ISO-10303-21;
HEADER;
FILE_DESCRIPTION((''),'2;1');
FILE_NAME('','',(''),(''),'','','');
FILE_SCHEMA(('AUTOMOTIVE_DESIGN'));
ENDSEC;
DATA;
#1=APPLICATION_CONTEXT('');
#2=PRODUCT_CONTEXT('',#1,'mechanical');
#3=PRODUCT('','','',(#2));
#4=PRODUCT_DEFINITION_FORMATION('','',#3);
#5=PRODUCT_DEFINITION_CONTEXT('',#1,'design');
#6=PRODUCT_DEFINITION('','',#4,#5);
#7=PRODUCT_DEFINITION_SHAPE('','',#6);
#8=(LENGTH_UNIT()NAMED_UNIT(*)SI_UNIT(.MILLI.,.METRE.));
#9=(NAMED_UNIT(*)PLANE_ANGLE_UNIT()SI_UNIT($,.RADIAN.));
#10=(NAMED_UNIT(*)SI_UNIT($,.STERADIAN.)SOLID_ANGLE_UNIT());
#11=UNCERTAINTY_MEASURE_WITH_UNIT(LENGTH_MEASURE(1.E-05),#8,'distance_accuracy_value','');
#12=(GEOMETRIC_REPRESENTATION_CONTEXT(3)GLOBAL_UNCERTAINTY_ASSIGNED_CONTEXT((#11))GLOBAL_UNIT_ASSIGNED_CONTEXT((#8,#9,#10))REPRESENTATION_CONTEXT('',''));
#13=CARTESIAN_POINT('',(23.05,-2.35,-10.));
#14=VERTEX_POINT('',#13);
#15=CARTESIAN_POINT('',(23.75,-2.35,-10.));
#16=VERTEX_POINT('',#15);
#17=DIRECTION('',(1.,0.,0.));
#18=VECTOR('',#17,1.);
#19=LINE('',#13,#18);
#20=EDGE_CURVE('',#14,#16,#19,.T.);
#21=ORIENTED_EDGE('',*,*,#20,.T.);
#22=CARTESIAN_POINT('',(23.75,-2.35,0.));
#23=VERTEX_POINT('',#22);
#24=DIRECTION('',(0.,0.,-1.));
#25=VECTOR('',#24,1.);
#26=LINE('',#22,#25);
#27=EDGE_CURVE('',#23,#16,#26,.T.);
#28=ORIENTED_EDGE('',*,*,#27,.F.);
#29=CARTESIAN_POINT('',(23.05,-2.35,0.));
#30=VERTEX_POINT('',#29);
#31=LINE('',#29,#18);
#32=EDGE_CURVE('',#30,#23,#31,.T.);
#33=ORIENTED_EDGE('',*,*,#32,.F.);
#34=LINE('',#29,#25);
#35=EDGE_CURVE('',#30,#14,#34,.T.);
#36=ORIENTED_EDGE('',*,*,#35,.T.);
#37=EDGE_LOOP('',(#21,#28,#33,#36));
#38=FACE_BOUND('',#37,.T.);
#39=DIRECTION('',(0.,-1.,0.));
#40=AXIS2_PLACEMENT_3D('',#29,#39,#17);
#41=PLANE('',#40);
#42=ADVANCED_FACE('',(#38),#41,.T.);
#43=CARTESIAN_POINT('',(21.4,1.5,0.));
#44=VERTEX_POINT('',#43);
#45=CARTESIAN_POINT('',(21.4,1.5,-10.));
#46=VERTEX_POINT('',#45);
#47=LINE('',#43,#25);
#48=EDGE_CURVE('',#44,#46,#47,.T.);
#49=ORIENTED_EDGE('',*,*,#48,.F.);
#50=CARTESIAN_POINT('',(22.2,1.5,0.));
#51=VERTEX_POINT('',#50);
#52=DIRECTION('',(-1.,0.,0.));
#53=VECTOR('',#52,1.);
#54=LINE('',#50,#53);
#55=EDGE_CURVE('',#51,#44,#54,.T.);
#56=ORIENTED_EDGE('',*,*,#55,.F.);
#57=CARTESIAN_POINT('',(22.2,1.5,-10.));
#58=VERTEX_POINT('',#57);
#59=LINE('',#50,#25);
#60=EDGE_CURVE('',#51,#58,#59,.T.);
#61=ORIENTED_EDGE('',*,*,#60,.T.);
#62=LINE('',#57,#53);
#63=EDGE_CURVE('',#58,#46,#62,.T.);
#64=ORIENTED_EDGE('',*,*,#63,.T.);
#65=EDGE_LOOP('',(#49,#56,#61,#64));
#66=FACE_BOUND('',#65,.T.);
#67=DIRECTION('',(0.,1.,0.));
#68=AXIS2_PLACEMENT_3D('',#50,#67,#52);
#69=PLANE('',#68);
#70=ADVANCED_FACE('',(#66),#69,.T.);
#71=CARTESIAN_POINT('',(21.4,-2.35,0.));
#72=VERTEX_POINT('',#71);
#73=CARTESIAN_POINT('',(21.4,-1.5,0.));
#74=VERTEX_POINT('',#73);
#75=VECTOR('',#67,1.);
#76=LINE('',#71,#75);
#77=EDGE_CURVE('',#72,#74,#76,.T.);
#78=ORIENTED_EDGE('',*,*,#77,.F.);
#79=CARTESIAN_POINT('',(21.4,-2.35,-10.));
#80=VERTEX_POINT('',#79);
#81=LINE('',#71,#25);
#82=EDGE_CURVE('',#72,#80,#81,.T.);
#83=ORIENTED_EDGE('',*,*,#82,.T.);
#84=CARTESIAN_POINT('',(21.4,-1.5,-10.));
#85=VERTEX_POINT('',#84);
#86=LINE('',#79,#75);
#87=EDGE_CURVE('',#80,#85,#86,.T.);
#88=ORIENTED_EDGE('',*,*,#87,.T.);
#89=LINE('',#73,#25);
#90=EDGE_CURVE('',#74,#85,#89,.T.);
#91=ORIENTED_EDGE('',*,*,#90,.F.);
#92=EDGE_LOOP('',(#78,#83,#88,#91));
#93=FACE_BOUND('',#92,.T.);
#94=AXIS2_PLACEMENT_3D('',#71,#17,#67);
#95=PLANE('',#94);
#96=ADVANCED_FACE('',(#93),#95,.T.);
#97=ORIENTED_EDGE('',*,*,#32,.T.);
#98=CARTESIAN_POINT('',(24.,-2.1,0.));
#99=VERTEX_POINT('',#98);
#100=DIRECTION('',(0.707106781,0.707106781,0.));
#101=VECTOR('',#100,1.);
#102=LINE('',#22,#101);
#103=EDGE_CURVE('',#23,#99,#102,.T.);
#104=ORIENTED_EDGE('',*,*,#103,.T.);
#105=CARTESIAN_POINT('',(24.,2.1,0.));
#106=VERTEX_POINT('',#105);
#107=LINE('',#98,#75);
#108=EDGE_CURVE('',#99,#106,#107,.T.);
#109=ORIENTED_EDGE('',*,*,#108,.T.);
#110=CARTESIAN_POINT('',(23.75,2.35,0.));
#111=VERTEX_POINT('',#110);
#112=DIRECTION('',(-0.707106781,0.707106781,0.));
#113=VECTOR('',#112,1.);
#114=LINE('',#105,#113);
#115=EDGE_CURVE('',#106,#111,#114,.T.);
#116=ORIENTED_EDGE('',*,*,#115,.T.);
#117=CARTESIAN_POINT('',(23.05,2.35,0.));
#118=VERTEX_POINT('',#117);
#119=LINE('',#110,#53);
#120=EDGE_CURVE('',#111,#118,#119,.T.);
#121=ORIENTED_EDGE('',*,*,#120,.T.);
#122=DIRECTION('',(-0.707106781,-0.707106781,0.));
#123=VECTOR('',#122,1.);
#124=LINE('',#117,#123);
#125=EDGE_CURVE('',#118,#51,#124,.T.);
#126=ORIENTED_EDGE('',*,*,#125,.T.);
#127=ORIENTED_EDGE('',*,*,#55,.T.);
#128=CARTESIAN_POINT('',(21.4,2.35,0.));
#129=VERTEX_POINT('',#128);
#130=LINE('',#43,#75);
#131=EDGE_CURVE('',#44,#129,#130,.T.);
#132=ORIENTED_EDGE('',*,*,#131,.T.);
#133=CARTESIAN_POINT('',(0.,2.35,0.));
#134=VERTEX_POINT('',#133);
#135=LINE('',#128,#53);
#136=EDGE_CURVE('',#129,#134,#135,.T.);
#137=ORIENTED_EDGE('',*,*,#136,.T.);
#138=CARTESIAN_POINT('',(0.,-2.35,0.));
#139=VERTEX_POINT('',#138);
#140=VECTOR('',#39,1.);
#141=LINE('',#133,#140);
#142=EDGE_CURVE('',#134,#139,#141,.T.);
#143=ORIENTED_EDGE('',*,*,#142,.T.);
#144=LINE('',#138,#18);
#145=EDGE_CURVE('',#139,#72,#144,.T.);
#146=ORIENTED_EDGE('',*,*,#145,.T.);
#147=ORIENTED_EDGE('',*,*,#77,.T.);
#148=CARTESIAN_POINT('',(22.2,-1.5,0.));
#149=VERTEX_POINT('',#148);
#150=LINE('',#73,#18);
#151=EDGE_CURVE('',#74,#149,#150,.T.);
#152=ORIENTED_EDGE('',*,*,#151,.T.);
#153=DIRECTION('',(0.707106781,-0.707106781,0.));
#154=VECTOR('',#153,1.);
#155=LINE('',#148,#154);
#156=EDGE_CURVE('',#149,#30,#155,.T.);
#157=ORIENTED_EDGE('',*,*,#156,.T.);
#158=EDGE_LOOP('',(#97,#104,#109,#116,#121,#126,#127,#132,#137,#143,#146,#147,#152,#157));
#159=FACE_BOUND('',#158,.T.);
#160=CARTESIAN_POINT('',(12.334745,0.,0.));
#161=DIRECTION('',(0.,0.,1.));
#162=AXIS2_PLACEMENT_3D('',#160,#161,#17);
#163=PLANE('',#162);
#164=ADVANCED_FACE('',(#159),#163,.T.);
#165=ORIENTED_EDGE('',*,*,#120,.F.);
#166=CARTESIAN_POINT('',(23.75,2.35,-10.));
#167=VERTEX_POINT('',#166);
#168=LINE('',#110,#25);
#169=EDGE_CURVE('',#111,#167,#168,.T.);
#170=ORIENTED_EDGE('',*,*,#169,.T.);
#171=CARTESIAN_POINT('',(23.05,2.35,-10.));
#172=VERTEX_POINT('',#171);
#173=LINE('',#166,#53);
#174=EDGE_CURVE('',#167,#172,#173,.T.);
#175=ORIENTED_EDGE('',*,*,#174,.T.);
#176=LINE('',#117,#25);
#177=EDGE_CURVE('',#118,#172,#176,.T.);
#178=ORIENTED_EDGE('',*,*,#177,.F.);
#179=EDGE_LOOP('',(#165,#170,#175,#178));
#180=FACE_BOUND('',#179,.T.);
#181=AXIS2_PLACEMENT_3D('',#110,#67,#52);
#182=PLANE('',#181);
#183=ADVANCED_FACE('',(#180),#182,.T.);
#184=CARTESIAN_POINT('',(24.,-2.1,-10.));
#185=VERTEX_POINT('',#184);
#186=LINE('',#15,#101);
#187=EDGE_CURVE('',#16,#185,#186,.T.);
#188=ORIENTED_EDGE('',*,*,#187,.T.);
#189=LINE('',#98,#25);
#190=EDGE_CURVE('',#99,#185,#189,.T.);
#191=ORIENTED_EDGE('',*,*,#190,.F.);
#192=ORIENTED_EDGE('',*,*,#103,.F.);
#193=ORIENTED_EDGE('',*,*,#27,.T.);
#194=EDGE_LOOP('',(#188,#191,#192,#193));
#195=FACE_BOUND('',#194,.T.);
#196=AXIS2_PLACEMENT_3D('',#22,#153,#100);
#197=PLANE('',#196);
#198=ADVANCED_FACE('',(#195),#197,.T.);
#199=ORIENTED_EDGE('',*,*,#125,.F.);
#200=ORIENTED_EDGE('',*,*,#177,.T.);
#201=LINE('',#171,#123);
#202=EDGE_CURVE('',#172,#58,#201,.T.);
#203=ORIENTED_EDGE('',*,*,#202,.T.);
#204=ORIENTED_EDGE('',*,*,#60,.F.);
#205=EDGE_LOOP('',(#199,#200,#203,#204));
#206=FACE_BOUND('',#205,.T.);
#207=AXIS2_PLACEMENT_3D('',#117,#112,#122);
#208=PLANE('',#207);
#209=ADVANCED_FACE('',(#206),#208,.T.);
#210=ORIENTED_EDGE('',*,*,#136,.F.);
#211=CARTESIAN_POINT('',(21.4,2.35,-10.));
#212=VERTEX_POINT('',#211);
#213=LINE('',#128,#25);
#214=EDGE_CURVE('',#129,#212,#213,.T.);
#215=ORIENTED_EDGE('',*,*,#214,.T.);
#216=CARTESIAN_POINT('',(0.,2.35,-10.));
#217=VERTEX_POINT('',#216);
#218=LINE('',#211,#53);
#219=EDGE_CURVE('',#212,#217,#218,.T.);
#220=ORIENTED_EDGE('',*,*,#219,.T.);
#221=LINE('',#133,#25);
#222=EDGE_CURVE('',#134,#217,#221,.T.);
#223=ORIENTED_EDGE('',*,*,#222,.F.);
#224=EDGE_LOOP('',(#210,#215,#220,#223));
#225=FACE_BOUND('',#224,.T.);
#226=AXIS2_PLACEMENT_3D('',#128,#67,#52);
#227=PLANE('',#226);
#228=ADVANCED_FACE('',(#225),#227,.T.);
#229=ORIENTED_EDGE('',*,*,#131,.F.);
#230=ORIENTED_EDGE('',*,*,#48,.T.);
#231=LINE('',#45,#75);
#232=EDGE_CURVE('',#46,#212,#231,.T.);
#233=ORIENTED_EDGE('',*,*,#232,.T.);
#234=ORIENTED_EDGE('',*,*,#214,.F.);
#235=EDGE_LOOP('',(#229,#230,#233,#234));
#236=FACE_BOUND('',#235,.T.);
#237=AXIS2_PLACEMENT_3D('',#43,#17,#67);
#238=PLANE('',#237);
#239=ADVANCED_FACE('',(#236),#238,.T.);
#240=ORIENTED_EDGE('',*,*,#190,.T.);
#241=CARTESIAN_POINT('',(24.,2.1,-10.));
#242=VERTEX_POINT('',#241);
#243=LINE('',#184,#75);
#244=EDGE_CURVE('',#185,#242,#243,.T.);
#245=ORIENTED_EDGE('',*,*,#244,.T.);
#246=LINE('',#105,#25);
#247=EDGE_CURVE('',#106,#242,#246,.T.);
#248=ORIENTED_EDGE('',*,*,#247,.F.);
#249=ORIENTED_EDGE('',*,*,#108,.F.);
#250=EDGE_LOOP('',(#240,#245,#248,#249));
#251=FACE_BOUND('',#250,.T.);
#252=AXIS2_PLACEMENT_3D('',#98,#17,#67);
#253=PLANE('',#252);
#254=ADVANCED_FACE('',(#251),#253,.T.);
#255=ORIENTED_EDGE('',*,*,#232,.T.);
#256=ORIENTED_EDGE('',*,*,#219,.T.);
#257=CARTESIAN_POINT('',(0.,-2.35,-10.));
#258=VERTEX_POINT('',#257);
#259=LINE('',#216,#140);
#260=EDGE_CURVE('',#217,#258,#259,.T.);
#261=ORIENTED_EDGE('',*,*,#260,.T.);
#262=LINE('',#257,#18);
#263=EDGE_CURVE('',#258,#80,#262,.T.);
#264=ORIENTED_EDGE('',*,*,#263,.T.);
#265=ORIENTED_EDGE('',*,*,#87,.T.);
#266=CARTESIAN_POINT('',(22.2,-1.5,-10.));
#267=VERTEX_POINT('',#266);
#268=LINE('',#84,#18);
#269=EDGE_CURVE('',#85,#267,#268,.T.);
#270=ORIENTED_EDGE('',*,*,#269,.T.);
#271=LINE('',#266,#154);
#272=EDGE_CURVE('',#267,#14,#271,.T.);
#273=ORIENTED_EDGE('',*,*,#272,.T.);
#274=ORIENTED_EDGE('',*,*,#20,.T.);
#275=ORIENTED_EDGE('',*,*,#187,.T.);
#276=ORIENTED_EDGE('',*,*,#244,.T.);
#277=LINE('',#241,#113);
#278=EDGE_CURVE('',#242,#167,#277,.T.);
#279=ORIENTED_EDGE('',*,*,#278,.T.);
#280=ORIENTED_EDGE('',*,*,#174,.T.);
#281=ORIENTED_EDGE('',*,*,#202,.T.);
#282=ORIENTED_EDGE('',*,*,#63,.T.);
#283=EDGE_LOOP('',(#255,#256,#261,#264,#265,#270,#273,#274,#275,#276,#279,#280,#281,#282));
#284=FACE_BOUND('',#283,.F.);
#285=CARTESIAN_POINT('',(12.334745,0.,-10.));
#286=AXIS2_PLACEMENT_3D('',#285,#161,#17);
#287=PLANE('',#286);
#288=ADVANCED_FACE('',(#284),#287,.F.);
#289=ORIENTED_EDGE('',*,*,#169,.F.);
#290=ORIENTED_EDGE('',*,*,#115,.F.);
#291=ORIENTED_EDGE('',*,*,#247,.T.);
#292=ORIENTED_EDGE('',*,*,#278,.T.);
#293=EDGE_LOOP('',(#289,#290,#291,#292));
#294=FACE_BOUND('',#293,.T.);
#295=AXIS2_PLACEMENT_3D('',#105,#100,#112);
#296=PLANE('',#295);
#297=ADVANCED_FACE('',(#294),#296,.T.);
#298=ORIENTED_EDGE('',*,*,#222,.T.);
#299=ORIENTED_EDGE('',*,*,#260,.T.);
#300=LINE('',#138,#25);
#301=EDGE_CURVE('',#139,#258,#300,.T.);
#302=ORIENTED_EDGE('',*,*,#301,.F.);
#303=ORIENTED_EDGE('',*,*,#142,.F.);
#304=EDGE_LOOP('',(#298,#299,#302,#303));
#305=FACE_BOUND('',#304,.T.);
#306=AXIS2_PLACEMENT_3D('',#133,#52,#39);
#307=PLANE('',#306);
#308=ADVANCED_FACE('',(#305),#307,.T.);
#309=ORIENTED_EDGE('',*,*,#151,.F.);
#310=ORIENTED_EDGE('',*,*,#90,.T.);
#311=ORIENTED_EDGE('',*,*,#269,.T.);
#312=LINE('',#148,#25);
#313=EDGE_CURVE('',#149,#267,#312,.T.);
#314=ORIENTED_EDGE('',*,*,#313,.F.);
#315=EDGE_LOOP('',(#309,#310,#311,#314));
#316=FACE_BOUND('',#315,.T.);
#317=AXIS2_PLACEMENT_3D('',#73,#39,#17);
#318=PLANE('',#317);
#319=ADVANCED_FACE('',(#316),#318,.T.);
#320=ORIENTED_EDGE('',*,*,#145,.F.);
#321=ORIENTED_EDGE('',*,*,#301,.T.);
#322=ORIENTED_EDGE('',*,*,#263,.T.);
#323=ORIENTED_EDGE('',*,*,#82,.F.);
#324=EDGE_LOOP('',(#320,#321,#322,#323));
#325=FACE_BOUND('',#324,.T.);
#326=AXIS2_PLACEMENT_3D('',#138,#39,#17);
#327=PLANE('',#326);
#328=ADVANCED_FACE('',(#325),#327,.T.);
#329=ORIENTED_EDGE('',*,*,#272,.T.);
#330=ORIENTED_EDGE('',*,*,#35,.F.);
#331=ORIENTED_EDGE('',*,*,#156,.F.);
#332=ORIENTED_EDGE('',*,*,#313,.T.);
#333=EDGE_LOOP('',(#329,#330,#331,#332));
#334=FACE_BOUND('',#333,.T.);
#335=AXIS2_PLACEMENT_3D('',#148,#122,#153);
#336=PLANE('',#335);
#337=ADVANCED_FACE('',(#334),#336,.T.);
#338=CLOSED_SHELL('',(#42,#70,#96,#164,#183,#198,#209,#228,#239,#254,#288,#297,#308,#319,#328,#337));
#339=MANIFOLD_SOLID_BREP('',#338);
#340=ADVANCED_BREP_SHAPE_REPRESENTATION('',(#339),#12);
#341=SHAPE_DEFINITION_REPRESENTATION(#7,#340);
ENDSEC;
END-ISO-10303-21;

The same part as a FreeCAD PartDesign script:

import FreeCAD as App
import Part
import Sketcher
from FreeCAD import Vector


def add_polygon(sketch, points):
    """Adds a closed chain of lines whose ends are joined by coincident constraints."""
    first, n = sketch.GeometryCount, len(points)
    for a, b in zip(points, points[1:] + points[:1]):
        sketch.addGeometry(Part.LineSegment(App.Vector(*a, 0), App.Vector(*b, 0)), False)
    for i in range(n):
        sketch.addConstraint(Sketcher.Constraint("Coincident", first + i, 2, first + (i + 1) % n, 1))

doc = App.newDocument("Part")
body = doc.addObject("PartDesign::Body", "Body")

sketch1 = body.newObject("Sketcher::SketchObject", "Sketch")
sketch1.AttachmentSupport = (doc.getObject("XY_Plane"), [""])
sketch1.MapMode = "FlatFace"
add_polygon(sketch1, [(22.2, 1.5), (21.4, 1.5), (21.4, 2.35), (0, 2.35), (0, -2.35), (21.4, -2.35), (21.4, -1.5), (22.2, -1.5), (23.05, -2.35), (23.75, -2.35), (24, -2.1), (24, 2.1), (23.75, 2.35), (23.05, 2.35)])
sketch1.addConstraint([
    Sketcher.Constraint("Horizontal", 0),
    Sketcher.Constraint("Vertical", 1),
    Sketcher.Constraint("Horizontal", 2),
    Sketcher.Constraint("Vertical", 3),
    Sketcher.Constraint("Horizontal", 4),
    Sketcher.Constraint("Vertical", 5),
    Sketcher.Constraint("Horizontal", 6),
    Sketcher.Constraint("Horizontal", 8),
    Sketcher.Constraint("Vertical", 10),
    Sketcher.Constraint("Horizontal", 12),
    Sketcher.Constraint("Symmetric", 2, 2, 3, 2, -1, 1),
    Sketcher.Constraint("Symmetric", 0, 2, 5, 2, -1),
    Sketcher.Constraint("Symmetric", 8, 2, 11, 2, -1),
    Sketcher.Constraint("Perpendicular", 7, 9),
    Sketcher.Constraint("Perpendicular", 9, 11),
    Sketcher.Constraint("Perpendicular", 11, 13),
    Sketcher.Constraint("Horizontal", 4, 2, 7, 2),
    Sketcher.Constraint("Vertical", 7, 2, 12, 2),
    Sketcher.Constraint("Vertical", 6, 2, 13, 2),
    Sketcher.Constraint("DistanceX", 0, 2, 0, 1, 0.8),
    Sketcher.Constraint("DistanceX", 2, 2, 2, 1, 21.4),
    Sketcher.Constraint("DistanceX", 8, 1, 8, 2, 0.7),
    Sketcher.Constraint("DistanceY", 3, 2, 3, 1, 4.7),
    Sketcher.Constraint("DistanceY", 10, 1, 10, 2, 4.2),
    Sketcher.Constraint("DistanceX", -1, 1, 9, 2, 24.0),
])
pad1 = body.newObject("PartDesign::Pad", "Pad")
pad1.Profile = sketch1
pad1.Length = 10
pad1.Reversed = True

doc.recompute()
